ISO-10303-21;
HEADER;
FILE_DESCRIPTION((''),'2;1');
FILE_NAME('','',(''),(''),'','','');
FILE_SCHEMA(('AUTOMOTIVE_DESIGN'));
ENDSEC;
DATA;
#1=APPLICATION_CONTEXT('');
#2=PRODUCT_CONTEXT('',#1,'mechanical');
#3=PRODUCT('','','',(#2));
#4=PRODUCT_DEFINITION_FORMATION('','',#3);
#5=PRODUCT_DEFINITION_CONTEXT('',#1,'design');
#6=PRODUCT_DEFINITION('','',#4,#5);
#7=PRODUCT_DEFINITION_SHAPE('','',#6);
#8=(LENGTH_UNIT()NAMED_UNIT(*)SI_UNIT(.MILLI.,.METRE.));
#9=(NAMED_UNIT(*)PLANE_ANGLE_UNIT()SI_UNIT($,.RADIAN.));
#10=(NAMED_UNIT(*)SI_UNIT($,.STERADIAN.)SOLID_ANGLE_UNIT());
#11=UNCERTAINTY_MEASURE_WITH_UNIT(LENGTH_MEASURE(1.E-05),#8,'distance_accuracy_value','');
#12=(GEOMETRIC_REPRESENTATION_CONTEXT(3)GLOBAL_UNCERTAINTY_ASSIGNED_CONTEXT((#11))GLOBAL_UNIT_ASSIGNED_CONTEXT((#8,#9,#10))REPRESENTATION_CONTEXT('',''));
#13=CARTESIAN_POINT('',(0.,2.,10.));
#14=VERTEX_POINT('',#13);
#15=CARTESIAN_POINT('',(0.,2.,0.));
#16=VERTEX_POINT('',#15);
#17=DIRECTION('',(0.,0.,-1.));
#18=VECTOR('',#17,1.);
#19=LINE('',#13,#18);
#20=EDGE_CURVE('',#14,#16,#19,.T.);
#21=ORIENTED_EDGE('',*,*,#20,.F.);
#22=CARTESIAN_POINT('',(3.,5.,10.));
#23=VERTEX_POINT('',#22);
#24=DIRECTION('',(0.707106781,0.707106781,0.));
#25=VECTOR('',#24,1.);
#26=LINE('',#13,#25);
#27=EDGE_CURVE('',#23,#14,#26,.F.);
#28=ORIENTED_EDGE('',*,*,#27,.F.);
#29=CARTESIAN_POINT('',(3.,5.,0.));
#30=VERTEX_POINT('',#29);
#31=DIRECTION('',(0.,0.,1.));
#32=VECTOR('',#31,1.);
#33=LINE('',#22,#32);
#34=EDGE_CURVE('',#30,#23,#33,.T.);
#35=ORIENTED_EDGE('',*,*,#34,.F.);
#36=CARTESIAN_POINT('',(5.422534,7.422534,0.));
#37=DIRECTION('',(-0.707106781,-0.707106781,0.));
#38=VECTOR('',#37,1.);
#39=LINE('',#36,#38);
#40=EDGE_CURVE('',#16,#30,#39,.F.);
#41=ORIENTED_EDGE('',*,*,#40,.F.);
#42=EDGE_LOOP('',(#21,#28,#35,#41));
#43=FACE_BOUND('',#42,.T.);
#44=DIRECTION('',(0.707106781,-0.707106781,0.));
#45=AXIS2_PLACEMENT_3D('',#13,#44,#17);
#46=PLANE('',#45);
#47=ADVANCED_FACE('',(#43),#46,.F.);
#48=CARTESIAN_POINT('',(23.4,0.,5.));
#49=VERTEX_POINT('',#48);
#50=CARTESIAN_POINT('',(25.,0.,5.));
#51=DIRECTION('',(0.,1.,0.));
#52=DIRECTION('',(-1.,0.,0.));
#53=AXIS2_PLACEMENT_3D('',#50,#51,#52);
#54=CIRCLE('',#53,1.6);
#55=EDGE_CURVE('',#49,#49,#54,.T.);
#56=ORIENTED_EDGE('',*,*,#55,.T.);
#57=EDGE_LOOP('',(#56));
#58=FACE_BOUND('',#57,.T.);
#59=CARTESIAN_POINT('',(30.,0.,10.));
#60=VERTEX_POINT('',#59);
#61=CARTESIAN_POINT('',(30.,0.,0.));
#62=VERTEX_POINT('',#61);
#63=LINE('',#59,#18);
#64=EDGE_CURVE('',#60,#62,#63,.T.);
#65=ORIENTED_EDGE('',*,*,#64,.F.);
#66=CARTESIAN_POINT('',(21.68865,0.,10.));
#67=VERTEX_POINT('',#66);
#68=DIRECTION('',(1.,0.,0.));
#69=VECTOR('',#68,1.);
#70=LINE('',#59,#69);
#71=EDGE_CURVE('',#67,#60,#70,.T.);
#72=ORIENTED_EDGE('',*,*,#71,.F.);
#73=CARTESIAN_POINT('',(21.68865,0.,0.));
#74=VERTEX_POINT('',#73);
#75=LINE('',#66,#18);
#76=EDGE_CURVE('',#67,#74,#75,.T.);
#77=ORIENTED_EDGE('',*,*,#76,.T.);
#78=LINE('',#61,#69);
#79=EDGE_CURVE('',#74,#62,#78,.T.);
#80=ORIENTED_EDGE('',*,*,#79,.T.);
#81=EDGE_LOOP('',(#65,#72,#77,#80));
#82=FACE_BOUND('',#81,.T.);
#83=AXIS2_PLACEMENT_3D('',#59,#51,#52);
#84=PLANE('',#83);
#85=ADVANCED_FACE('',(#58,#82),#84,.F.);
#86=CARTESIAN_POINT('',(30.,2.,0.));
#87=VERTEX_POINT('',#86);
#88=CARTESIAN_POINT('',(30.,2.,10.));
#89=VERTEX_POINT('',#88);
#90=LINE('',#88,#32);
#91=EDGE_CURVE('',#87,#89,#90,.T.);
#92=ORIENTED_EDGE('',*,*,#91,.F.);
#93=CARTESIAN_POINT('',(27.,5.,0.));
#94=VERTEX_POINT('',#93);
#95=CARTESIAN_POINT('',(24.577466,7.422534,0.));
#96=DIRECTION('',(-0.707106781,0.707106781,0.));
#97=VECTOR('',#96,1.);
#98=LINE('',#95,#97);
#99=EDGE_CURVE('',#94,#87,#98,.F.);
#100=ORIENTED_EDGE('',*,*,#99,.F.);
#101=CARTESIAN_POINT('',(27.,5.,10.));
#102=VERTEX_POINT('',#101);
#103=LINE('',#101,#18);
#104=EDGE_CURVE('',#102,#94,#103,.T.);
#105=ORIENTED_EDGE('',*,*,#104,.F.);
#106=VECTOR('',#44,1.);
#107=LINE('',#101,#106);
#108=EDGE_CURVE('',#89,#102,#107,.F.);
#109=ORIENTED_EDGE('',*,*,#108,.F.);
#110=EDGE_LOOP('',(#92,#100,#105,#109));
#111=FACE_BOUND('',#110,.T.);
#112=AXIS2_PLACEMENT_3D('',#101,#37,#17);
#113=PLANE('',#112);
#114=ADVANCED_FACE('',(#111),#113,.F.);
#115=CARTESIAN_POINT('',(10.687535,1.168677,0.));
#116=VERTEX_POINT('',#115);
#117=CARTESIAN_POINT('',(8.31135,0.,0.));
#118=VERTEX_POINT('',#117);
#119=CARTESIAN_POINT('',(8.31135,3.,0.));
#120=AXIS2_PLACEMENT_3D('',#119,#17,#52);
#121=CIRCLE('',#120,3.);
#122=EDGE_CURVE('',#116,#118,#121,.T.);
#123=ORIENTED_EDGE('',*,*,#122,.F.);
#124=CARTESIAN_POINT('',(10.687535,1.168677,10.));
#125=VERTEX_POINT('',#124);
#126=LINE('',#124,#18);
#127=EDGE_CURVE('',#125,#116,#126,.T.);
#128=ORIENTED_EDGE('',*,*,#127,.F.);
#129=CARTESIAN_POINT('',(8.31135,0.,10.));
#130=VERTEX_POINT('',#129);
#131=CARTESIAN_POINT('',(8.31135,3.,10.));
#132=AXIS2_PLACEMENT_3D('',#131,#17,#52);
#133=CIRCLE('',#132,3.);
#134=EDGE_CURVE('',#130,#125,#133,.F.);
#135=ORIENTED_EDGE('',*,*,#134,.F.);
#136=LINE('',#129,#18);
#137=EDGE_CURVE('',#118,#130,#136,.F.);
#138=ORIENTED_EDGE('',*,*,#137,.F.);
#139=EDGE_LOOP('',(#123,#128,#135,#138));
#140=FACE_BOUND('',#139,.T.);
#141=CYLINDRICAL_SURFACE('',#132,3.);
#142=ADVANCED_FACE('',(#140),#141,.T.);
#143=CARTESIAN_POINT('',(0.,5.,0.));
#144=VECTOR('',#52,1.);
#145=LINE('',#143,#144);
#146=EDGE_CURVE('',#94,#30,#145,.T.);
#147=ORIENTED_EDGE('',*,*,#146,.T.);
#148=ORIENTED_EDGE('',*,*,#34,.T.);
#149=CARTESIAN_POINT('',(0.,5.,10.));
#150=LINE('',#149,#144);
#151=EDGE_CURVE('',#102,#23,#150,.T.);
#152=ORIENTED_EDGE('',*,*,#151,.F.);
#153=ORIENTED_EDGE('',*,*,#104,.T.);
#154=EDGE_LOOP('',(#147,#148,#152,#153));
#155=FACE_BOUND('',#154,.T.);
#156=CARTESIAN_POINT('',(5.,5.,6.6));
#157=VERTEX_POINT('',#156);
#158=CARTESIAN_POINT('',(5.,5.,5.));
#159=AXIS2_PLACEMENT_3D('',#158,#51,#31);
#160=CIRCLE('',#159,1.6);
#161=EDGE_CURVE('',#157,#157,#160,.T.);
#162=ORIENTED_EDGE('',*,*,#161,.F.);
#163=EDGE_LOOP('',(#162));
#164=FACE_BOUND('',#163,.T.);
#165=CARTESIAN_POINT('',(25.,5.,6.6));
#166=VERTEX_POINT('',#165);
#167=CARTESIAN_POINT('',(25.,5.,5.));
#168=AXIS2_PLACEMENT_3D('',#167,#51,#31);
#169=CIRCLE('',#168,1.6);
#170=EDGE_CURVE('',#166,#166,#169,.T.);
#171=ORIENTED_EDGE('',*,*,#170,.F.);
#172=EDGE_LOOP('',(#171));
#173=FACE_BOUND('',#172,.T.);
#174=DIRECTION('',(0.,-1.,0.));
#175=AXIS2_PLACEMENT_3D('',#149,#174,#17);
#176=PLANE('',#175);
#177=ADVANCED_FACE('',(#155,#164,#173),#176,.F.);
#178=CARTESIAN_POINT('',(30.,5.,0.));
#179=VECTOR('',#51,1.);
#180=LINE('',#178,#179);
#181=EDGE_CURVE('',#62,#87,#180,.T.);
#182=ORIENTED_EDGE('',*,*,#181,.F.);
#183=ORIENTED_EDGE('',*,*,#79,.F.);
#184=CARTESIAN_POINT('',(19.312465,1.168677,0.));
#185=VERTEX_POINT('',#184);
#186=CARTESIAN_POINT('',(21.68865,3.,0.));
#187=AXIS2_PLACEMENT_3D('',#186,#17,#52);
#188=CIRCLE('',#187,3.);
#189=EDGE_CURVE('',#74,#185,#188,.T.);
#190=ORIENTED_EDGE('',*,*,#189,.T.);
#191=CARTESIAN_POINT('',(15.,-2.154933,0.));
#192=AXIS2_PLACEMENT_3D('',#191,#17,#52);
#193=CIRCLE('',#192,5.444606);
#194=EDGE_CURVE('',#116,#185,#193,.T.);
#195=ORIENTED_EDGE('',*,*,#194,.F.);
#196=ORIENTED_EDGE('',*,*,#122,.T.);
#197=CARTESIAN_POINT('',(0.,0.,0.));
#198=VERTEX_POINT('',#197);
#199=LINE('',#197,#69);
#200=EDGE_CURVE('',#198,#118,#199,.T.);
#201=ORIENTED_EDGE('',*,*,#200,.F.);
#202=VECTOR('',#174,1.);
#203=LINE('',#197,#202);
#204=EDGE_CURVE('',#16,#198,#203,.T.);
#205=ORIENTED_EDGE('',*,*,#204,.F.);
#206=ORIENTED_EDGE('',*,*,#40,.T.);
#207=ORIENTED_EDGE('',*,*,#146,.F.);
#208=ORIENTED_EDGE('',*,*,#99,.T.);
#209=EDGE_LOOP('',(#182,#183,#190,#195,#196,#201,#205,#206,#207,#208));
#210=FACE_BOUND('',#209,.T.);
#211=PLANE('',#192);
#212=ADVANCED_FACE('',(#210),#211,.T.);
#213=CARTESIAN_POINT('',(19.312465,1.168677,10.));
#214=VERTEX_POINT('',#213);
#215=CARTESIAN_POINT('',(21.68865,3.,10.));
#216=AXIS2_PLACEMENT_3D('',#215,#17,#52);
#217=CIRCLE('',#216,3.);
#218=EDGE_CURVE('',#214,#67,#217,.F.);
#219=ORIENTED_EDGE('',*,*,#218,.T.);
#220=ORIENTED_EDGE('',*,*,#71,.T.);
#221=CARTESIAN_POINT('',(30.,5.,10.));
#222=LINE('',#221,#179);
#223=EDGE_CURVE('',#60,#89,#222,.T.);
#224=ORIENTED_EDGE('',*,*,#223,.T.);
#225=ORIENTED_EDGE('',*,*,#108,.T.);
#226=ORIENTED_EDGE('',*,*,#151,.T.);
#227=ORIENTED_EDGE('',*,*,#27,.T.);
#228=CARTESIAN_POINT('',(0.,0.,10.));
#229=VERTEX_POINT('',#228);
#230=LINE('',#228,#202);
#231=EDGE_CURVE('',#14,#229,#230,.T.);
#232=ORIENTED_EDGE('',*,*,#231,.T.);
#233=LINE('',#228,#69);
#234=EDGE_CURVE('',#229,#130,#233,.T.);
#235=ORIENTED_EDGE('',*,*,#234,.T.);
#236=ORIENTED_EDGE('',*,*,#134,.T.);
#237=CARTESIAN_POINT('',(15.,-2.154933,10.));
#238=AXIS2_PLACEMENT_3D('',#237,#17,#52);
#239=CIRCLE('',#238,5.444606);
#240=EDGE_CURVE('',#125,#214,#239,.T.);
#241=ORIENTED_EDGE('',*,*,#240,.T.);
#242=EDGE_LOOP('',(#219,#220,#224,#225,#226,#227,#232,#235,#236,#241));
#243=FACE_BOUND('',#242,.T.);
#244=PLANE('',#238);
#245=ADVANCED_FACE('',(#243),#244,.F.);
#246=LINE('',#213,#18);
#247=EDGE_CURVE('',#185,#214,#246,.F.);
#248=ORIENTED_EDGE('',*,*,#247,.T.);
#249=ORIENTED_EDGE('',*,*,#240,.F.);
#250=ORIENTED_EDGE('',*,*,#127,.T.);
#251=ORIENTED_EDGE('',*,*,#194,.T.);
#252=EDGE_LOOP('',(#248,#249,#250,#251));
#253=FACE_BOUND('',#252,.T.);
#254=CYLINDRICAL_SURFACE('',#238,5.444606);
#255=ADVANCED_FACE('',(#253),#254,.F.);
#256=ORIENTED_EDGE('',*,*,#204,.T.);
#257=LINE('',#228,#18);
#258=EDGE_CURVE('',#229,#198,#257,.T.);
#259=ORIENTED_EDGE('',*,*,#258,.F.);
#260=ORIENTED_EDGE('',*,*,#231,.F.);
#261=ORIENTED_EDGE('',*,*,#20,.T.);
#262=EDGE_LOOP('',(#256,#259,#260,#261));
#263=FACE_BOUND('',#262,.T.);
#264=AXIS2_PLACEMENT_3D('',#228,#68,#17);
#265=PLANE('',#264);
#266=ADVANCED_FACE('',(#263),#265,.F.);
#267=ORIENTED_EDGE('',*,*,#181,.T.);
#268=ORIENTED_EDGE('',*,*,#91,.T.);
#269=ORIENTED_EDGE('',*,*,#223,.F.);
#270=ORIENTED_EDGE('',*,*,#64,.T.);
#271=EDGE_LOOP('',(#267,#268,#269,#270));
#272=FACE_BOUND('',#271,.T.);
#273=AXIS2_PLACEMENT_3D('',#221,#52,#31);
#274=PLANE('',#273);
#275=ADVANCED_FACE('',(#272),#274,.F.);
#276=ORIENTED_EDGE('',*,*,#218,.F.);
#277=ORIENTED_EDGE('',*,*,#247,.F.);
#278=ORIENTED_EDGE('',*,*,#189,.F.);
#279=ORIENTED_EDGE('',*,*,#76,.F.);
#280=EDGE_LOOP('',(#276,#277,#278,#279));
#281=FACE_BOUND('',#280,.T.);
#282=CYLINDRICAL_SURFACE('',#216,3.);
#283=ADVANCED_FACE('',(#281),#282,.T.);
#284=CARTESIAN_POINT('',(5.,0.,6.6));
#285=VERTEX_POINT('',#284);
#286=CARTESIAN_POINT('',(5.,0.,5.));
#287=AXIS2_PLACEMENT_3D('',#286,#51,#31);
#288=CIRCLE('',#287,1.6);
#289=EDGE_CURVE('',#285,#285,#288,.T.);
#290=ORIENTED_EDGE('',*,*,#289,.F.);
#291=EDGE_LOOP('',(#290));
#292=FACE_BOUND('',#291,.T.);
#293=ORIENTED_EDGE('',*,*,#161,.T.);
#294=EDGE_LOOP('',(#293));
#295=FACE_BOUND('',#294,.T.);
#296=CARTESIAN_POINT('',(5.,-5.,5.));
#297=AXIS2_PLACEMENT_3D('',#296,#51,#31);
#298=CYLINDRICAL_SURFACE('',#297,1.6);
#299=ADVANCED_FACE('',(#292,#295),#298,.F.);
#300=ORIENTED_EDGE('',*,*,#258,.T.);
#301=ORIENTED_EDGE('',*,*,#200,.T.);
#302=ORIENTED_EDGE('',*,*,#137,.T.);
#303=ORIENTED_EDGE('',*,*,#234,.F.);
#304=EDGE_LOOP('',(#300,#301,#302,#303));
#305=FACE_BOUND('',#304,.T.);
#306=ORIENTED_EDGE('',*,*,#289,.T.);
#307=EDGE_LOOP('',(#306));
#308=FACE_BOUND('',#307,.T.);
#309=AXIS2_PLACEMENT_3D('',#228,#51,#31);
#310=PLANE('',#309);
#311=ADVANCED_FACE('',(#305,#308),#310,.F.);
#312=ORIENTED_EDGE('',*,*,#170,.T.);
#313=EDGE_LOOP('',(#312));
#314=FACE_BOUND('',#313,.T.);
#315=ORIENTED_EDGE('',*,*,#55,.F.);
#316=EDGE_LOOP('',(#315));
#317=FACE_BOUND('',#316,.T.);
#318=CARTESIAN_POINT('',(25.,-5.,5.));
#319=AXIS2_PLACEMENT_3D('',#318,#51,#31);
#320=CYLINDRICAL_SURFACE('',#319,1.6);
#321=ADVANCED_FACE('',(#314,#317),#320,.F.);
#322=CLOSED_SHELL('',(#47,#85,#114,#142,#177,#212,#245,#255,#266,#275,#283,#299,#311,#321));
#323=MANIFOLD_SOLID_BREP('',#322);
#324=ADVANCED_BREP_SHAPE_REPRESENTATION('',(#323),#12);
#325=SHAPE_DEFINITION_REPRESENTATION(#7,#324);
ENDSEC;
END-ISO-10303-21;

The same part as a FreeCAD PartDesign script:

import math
import FreeCAD as App
import Part
import Sketcher
from FreeCAD import Vector
Q = App.Units.Quantity


def edges_at(feature, points):
    """Names of the edges that pass closest to the given points."""
    edges = feature.Shape.Edges
    near = lambda p: min(range(len(edges)), key=lambda i: edges[i].distToShape(Part.Vertex(*p))[0])
    return sorted({f"Edge{near(p) + 1}" for p in points})

doc = App.newDocument("Part")
body = doc.addObject("PartDesign::Body", "Body")

# Sketch on XY plane
sketch1 = body.newObject("Sketcher::SketchObject", "Sketch")
sketch1.AttachmentSupport = (doc.getObject("XY_Plane"), [""])
sketch1.MapMode = "FlatFace"
sketch1.addGeometry([
    Part.LineSegment(Vector(0, 5, 0), Vector(0, 0, 0)),  # 0
    Part.LineSegment(Vector(0, 0, 0), Vector(10, 0, 0)),  # 1
    Part.ArcOfCircle(Part.Circle(Vector(15, -2.154933, 0), Vector(0, 0, 1), 5.444606), math.radians(23.315392), math.radians(156.684608)),  # 2
    Part.LineSegment(Vector(20, 0, 0), Vector(30, 0, 0)),  # 3
    Part.LineSegment(Vector(30, 0, 0), Vector(30, 5, 0)),  # 4
    Part.LineSegment(Vector(30, 5, 0), Vector(0, 5, 0)),  # 5
], False)
sketch1.addConstraint([
    Sketcher.Constraint("Coincident", 0, 2, 1, 1),
    Sketcher.Constraint("Coincident", 1, 2, 2, 2),
    Sketcher.Constraint("Coincident", 2, 1, 3, 1),
    Sketcher.Constraint("Coincident", 3, 2, 4, 1),
    Sketcher.Constraint("Coincident", 4, 2, 5, 1),
    Sketcher.Constraint("Coincident", 5, 2, 0, 1),
    Sketcher.Constraint("Vertical", 0),
    Sketcher.Constraint("Horizontal", 1),
    Sketcher.Constraint("Horizontal", 3),
    Sketcher.Constraint("Vertical", 4),
    Sketcher.Constraint("Horizontal", 5),
    Sketcher.Constraint("Coincident", 0, 2, -1, 1),
    Sketcher.Constraint("PointOnObject", 2, 1, -1),
    Sketcher.Constraint("Equal", 1, 3),
    Sketcher.Constraint("DistanceX", 1, 1, 1, 2, Q("10 mm")),
    Sketcher.Constraint("DistanceX", 5, 2, 5, 1, Q("30 mm")),
    Sketcher.Constraint("DistanceY", 0, 2, 0, 1, Q("5 mm")),
    Sketcher.Constraint("Radius", 2, Q("5.444606 mm")),
])
pad1 = body.newObject("PartDesign::Pad", "Pad")
pad1.Profile = sketch1
pad1.Length = 10

# Sketch on XZ plane
sketch2 = body.newObject("Sketcher::SketchObject", "Sketch001")
sketch2.AttachmentSupport = (doc.getObject("XZ_Plane"), [""])
sketch2.MapMode = "FlatFace"
sketch2.AttachmentOffset = App.Placement(Vector(0, 0, -5), App.Rotation())
sketch2.addGeometry([
    Part.Circle(Vector(5, 5, 0), Vector(0, 0, 1), 1.6),
    Part.Circle(Vector(25, 5, 0), Vector(0, 0, 1), 1.6),
], False)
sketch2.addConstraint([
    Sketcher.Constraint("Equal", 0, 1),
    Sketcher.Constraint("Horizontal", 0, 3, 1, 3),
    Sketcher.Constraint("Diameter", 0, Q("3.2 mm")),
    Sketcher.Constraint("DistanceX", -1, 1, 0, 3, Q("5 mm")),
    Sketcher.Constraint("DistanceY", -1, 1, 0, 3, Q("5 mm")),
    Sketcher.Constraint("DistanceX", -1, 1, 1, 3, Q("25 mm")),
])
pocket1 = body.newObject("PartDesign::Pocket", "Pocket")
pocket1.Profile = sketch2
pocket1.Length = 10
pocket1.Reversed = True
doc.recompute()

chamfer = body.newObject("PartDesign::Chamfer", "Chamfer")
chamfer.Base = (pocket1, edges_at(pocket1, [(0, 5, 5), (30, 5, 5)]))
chamfer.Size = 3
doc.recompute()

fillet = body.newObject("PartDesign::Fillet", "Fillet")
fillet.Base = (chamfer, edges_at(chamfer, [(20, 0, 5), (10, 0, 5)]))
fillet.Radius = 3

doc.recompute()
